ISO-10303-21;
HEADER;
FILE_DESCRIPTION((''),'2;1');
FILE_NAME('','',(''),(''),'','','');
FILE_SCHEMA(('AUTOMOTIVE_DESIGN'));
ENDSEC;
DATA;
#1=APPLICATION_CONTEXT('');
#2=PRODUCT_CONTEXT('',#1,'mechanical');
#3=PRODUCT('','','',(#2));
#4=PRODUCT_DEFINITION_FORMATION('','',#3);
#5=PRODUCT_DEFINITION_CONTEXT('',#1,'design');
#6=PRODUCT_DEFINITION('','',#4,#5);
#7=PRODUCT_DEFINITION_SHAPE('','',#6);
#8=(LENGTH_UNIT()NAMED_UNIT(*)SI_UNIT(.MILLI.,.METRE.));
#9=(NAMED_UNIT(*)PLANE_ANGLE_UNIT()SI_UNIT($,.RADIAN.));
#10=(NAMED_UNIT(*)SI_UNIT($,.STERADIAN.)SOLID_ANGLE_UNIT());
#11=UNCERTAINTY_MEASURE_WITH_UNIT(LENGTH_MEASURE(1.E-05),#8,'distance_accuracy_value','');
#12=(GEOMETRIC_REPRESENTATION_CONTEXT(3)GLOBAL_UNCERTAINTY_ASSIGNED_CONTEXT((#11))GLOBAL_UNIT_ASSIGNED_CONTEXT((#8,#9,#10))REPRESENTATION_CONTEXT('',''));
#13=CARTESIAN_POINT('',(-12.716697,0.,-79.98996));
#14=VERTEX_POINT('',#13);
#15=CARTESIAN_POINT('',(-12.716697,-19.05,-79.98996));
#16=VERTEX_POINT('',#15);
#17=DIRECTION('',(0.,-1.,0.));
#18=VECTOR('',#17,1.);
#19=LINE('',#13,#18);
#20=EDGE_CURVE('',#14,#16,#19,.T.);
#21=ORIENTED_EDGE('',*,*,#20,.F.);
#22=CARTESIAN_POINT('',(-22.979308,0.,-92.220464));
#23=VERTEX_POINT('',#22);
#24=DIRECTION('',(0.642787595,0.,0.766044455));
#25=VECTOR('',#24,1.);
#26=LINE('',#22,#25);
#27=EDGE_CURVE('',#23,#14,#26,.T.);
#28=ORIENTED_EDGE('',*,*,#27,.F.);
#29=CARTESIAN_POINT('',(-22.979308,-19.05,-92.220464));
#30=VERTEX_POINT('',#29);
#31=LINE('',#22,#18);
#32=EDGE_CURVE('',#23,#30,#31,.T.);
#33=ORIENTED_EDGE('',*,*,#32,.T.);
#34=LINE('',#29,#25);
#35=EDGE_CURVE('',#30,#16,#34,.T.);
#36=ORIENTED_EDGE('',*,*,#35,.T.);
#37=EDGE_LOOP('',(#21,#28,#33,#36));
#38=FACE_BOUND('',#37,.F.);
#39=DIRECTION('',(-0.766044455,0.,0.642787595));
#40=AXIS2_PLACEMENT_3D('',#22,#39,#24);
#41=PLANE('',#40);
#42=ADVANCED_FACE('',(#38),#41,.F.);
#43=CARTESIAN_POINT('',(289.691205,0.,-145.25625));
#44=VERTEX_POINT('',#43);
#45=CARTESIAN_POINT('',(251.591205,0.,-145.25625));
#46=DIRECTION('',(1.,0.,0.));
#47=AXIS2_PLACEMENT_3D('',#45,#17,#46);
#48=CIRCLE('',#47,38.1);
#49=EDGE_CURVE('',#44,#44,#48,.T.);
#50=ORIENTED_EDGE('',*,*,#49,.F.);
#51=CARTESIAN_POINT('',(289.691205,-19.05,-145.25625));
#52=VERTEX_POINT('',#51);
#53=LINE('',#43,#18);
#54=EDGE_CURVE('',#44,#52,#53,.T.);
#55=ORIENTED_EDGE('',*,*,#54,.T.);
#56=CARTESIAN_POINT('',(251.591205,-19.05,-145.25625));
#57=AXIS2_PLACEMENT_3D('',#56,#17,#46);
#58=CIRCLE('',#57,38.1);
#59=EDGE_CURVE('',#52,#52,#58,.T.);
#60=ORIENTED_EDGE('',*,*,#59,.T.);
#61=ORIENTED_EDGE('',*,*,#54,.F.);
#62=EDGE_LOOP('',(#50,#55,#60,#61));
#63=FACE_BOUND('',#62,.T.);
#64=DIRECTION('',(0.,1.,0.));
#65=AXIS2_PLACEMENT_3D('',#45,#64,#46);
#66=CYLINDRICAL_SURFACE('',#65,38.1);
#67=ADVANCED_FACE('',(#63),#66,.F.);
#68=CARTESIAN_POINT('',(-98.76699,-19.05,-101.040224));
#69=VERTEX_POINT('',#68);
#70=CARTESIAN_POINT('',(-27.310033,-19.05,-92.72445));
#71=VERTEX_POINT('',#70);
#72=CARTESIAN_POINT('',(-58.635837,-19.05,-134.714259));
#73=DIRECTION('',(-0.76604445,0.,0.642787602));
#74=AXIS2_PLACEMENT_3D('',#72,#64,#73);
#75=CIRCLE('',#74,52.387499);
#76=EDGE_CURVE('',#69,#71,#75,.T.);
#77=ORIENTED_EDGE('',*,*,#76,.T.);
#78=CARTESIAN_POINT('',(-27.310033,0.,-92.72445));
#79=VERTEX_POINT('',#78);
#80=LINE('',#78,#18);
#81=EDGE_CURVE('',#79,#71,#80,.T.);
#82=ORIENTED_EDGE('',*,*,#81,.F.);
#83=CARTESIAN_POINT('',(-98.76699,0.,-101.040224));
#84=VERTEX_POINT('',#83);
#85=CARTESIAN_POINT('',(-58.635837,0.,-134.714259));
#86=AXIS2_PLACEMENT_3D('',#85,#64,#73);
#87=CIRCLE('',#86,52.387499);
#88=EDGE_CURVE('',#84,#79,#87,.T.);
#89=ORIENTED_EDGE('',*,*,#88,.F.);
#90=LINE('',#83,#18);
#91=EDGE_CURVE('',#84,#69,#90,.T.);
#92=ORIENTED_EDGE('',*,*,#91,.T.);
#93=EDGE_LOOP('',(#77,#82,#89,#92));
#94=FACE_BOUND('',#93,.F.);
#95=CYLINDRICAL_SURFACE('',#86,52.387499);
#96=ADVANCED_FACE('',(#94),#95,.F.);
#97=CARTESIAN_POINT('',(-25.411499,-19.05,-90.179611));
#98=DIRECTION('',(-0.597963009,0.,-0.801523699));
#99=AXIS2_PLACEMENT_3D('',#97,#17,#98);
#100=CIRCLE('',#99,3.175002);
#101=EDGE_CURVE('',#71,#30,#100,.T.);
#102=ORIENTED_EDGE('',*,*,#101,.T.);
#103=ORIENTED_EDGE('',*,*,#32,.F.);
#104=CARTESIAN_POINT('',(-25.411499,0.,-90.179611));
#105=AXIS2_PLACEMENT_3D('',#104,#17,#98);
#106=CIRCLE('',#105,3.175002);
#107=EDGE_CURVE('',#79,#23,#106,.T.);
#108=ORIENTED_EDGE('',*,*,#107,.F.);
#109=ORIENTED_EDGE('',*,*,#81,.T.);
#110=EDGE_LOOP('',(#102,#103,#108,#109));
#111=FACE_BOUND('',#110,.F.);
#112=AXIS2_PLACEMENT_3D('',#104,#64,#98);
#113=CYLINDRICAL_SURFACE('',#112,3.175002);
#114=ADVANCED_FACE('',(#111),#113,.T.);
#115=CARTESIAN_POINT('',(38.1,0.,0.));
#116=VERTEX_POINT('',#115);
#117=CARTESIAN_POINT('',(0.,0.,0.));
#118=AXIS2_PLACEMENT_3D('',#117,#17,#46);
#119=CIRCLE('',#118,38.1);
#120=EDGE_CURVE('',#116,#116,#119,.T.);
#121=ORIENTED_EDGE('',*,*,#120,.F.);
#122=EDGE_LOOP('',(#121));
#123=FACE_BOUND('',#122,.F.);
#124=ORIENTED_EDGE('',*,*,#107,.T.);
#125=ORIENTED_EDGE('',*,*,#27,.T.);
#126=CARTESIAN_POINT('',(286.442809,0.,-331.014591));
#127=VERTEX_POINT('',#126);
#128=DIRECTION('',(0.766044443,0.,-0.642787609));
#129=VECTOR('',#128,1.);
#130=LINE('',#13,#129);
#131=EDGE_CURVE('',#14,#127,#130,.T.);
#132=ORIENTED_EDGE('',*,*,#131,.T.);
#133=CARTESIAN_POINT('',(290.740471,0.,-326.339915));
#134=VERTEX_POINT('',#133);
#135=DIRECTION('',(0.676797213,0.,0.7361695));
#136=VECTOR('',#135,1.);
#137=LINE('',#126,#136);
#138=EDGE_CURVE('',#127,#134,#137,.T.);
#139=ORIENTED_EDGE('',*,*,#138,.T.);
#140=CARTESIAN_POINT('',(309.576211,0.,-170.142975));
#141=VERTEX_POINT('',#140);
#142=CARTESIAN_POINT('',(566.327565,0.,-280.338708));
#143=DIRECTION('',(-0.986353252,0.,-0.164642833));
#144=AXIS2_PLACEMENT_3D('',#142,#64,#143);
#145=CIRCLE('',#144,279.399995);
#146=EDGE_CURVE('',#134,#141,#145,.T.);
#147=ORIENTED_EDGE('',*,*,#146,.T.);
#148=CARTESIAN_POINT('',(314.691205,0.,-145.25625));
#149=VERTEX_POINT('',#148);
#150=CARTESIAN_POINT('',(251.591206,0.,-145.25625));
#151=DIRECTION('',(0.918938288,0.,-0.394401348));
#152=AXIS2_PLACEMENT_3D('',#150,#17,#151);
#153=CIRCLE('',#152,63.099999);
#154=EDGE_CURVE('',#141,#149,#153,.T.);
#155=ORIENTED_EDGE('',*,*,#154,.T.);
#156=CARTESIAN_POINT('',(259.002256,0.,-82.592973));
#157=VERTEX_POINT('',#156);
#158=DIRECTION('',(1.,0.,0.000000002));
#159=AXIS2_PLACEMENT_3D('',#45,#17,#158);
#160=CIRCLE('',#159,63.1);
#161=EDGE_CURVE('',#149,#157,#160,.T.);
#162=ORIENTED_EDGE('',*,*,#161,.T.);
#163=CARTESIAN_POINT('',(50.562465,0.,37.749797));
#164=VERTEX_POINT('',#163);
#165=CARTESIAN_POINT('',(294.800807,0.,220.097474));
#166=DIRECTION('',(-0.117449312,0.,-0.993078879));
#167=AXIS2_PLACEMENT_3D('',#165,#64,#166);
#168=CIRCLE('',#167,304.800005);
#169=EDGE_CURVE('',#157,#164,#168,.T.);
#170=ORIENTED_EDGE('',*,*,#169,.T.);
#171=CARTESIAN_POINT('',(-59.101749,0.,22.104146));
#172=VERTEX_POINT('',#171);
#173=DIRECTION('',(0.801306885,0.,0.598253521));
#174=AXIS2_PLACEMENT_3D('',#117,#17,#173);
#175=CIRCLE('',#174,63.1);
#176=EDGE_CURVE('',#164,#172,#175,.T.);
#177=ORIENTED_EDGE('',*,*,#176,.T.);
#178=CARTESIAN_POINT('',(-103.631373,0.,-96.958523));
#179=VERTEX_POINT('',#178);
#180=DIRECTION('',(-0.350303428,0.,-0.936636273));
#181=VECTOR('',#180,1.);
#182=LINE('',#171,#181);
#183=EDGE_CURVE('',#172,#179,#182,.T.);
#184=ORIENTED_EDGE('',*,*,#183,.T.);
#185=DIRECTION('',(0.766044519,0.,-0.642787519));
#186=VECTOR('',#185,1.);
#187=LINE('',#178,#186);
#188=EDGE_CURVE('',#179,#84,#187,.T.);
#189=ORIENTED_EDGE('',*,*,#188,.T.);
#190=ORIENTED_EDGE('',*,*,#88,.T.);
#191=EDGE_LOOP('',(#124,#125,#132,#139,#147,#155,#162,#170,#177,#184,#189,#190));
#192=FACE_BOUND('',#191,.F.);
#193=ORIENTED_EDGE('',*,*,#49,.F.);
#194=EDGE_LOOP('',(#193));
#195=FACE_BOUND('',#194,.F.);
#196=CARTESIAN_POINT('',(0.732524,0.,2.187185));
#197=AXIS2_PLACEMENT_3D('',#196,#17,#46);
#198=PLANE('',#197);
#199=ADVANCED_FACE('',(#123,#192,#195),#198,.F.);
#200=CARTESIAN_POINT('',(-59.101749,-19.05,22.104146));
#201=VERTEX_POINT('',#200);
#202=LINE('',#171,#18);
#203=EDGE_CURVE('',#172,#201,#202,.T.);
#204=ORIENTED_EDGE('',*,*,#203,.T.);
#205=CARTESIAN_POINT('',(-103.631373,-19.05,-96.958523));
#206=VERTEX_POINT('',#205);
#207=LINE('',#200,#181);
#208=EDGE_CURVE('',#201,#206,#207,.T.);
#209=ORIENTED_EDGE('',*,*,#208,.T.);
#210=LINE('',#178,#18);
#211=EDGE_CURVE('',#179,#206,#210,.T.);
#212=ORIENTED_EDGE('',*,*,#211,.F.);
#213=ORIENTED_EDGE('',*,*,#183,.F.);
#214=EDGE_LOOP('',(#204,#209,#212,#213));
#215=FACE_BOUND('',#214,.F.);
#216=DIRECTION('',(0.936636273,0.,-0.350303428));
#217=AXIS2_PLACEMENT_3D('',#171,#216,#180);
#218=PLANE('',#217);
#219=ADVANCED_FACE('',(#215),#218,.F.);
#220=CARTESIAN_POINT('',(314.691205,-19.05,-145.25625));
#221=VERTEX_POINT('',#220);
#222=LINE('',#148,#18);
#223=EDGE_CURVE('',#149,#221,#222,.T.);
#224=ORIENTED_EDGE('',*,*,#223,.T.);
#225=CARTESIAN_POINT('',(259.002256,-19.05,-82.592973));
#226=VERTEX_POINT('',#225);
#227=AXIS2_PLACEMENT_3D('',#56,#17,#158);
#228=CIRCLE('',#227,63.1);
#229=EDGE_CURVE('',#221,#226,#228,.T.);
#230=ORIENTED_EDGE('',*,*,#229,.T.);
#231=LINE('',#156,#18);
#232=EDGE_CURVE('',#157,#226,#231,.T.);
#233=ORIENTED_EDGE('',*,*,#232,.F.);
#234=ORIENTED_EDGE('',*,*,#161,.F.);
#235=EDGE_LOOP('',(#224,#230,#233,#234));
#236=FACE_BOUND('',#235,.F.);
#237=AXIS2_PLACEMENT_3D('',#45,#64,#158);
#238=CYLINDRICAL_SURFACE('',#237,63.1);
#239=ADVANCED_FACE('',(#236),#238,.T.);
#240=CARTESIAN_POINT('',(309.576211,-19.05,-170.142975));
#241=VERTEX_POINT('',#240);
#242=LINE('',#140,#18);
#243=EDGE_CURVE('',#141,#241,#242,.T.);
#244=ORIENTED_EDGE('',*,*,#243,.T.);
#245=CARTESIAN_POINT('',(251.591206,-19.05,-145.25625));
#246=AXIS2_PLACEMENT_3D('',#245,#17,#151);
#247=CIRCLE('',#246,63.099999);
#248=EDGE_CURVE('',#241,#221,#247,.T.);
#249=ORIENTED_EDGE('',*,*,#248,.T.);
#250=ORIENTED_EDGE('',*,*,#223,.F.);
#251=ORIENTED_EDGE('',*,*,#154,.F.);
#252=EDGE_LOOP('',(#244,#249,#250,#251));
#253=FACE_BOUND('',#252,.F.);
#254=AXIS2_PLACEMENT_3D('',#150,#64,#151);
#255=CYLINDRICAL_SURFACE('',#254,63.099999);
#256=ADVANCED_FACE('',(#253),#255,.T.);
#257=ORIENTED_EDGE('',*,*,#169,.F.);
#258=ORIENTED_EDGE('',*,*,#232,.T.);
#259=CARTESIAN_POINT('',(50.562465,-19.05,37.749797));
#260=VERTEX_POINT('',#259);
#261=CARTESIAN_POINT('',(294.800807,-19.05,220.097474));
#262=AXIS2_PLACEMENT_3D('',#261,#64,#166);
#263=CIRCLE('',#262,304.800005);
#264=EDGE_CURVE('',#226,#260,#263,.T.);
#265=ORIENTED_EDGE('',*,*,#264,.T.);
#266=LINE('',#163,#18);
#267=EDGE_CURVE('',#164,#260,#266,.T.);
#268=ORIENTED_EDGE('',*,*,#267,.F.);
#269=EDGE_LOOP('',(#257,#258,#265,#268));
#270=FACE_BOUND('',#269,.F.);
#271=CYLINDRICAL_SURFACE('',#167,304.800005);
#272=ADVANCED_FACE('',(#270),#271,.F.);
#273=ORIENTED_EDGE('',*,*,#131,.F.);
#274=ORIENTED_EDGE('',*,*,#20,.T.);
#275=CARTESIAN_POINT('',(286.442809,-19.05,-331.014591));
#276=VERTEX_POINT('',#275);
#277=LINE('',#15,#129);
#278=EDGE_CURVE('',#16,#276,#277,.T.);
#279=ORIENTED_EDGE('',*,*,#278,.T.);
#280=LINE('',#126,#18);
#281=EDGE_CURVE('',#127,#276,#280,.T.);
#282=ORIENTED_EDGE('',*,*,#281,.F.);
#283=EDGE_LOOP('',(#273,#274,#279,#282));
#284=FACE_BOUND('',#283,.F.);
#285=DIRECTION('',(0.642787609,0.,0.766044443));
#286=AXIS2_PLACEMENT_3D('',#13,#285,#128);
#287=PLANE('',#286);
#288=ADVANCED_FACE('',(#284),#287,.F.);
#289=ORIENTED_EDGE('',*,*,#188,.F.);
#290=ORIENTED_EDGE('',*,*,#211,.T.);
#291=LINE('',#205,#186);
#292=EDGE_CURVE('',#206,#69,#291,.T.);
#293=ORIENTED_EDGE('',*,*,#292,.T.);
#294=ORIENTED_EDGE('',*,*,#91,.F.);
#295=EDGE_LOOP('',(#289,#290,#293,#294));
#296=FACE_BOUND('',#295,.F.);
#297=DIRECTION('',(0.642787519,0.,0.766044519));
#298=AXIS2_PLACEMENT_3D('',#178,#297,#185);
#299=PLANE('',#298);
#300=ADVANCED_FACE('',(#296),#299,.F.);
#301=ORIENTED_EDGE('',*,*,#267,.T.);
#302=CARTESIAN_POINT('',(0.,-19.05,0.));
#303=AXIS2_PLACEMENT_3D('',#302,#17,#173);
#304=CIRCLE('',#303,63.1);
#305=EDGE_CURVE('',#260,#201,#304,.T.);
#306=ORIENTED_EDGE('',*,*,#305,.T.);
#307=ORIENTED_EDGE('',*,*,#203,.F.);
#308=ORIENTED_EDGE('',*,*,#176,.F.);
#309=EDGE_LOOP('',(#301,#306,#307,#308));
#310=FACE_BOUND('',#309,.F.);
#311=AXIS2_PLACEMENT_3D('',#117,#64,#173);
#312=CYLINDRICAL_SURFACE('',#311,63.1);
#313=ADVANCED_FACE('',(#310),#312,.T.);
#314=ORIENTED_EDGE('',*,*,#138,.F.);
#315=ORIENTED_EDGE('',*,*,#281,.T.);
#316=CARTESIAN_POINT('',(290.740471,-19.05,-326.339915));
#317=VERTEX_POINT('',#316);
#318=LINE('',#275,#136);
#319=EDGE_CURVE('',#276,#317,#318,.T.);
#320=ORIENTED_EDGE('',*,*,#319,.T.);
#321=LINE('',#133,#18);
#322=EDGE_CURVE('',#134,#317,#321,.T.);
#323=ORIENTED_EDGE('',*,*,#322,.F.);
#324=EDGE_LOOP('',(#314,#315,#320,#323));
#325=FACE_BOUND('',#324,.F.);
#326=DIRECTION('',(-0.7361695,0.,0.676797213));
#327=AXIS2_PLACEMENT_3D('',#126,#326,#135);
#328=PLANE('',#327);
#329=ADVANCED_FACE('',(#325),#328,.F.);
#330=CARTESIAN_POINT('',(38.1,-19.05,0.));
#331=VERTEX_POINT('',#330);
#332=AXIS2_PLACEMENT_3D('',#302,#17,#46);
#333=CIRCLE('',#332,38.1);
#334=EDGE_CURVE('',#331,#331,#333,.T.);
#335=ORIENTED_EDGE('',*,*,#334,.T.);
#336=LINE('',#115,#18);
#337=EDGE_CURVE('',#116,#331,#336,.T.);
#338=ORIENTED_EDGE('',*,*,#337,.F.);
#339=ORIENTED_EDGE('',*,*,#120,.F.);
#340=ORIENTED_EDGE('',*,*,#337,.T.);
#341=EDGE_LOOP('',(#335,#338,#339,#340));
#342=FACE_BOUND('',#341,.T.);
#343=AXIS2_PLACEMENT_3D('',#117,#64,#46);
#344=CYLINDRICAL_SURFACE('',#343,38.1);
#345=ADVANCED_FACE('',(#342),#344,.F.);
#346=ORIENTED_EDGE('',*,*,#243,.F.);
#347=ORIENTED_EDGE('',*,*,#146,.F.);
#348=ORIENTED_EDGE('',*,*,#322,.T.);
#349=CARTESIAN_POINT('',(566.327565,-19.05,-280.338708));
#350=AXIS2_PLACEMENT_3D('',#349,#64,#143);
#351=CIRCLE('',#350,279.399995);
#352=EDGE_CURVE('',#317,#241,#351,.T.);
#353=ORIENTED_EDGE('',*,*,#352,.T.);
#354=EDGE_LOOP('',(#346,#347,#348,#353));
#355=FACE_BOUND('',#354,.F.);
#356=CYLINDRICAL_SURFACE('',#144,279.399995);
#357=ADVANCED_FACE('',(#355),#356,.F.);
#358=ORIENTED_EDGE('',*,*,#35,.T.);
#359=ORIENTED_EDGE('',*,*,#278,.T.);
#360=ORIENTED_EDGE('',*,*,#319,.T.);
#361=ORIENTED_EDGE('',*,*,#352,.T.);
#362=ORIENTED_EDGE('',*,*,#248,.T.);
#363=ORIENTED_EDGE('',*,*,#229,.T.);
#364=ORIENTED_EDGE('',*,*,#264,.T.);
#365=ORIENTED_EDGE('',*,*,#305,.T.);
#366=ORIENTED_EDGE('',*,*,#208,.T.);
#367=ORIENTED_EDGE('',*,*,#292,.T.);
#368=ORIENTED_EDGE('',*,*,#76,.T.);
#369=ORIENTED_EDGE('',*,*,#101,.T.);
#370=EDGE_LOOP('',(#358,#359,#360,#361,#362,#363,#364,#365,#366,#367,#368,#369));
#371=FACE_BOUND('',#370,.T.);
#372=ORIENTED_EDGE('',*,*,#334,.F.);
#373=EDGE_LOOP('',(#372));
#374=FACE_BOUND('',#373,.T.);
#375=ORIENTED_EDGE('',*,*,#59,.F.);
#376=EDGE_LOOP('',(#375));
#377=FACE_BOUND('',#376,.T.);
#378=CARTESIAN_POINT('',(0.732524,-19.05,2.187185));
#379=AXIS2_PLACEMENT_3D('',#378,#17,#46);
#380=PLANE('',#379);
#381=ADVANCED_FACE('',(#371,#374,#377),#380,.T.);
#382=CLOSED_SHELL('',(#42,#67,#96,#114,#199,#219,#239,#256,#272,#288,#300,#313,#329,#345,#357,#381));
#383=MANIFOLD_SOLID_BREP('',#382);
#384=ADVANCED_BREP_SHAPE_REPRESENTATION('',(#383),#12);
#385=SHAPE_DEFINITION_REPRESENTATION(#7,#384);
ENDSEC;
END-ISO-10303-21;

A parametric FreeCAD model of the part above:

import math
import FreeCAD as App
import Part
import Sketcher

V = App.Vector
Q = App.Units.Quantity

doc = App.newDocument("Part")
body = doc.addObject("PartDesign::Body", "Body")

sketch1 = doc.addObject("Sketcher::SketchObject", "Sketch")
body.addObject(sketch1)
sketch1.AttachmentSupport = (doc.XZ_Plane, [""])
sketch1.MapMode = "FlatFace"
sketch1.addGeometry([
    Part.ArcOfCircle(Part.Circle(V(0, 0, 0), V(0, 0, 1), 63.1), math.radians(36.744917), math.radians(159.494125)),
    Part.LineSegment(V(-59.101749, 22.104146, 0), V(-103.631373, -96.958523, 0)),
    Part.LineSegment(V(-103.631373, -96.958523, 0), V(-98.76699, -101.040224, 0)),
    Part.ArcOfCircle(Part.Circle(V(-58.635837, -134.714259, 0), V(0, 0, 1), 52.387499), math.radians(53.275828), math.radians(140.000001)),
    Part.ArcOfCircle(Part.Circle(V(-25.411499, -90.179611, 0), V(0, 0, 1), 3.175002), math.radians(-126.724148), math.radians(-40.000032)),
    Part.LineSegment(V(-22.979308, -92.220464, 0), V(-12.716697, -79.98996, 0)),
    Part.LineSegment(V(-12.716697, -79.98996, 0), V(286.442809, -331.014591, 0)),
    Part.LineSegment(V(286.442809, -331.014591, 0), V(290.740471, -326.339915, 0)),
    Part.ArcOfCircle(Part.Circle(V(566.327565, -280.338708, 0), V(0, 0, 1), 279.399995), math.radians(156.771357), math.radians(189.476487)),
    Part.ArcOfCircle(Part.Circle(V(251.591206, -145.25625, 0), V(0, 0, 1), 63.099999), math.radians(-23.228643), math.radians(0)),
    Part.ArcOfCircle(Part.Circle(V(251.591205, -145.25625, 0), V(0, 0, 1), 63.1), math.radians(0), math.radians(83.255083)),
    Part.ArcOfCircle(Part.Circle(V(294.800807, 220.097474, 0), V(0, 0, 1), 304.800005), math.radians(-143.255082), math.radians(-96.744918)),
    Part.Circle(V(251.591205, -145.25625, 0), V(0, 0, 1), 38.1),
    Part.Circle(V(0, 0, 0), V(0, 0, 1), 38.1),
], False)
sketch1.addConstraint([
    Sketcher.Constraint("Coincident", 0, 2, 1, 1),
    Sketcher.Constraint("Coincident", 1, 2, 2, 1),
    Sketcher.Constraint("Coincident", 2, 2, 3, 2),
    Sketcher.Constraint("Coincident", 3, 1, 4, 1),
    Sketcher.Constraint("Coincident", 4, 2, 5, 1),
    Sketcher.Constraint("Coincident", 5, 2, 6, 1),
    Sketcher.Constraint("Coincident", 6, 2, 7, 1),
    Sketcher.Constraint("Coincident", 7, 2, 8, 2),
    Sketcher.Constraint("Coincident", 8, 1, 9, 1),
    Sketcher.Constraint("Coincident", 9, 2, 10, 1),
    Sketcher.Constraint("Coincident", 10, 2, 11, 2),
    Sketcher.Constraint("Coincident", 11, 1, 0, 1),
    Sketcher.Constraint("Coincident", 0, 3, -1, 1),
    Sketcher.Constraint("Coincident", 13, 3, -1, 1),
    Sketcher.Constraint("Coincident", 10, 3, 9, 3),
    Sketcher.Constraint("Coincident", 12, 3, 9, 3),
    Sketcher.Constraint("Diameter", 12, Q("3 in")),
    Sketcher.Constraint("Diameter", 13, Q("3 in")),
    Sketcher.Constraint("Radius", 11, Q("12.0000002 in")),
    Sketcher.Constraint("Radius", 3, Q("2.0625 in")),
    Sketcher.Constraint("Radius", 4, Q("0.1250001 in")),
    Sketcher.Constraint("Distance", 2, Q("0.25 in")),
    Sketcher.Constraint("Distance", 7, Q("0.25 in")),
    Sketcher.Constraint("Radius", 0, Q("63.1 mm")),
    Sketcher.Constraint("Radius", 9, Q("63.099999 mm")),
    Sketcher.Constraint("Distance", 6, Q("15.375 in")),
    Sketcher.Constraint("DistanceY", 9, 3, -1, 1, Q("5.71875 in")),
    Sketcher.Constraint("DistanceY", 9, 2, -1, 1, Q("5.71875 in")),
    Sketcher.Constraint("Radius", 8, Q("279.399995 mm")),
    Sketcher.Constraint("DistanceY", 3, 3, 5, 2, Q("2.1545 in")),
    Sketcher.Constraint("DistanceX", 4, 3, -1, 1, Q("25.411499 mm")),
    Sketcher.Constraint("DistanceX", 3, 3, 8, 3, Q("624.963402 mm")),
    Sketcher.Constraint("DistanceX", 9, 3, 11, 3, Q("43.209601 mm")),
    Sketcher.Constraint("DistanceY", 2, 2, 1, 2, Q("4.081701 mm")),
    Sketcher.Constraint("DistanceX", 6, 2, 8, 1, Q("23.133402 mm")),
    Sketcher.Constraint("Distance", 5, Q("15.965789 mm")),
    Sketcher.Constraint("DistanceY", 3, 3, -1, 1, Q("134.714259 mm")),
    Sketcher.Constraint("DistanceY", 4, 3, -1, 1, Q("90.179611 mm")),
    Sketcher.Constraint("DistanceX", 0, 2, -1, 1, Q("59.101749 mm")),
    Sketcher.Constraint("DistanceX", 2, 2, -1, 1, Q("98.76699 mm")),
    Sketcher.Constraint("DistanceY", 3, 1, -1, 1, Q("92.72445 mm")),
    Sketcher.Constraint("DistanceX", 4, 2, -1, 1, Q("22.979308 mm")),
    Sketcher.Constraint("DistanceX", -1, 1, 6, 2, Q("286.442809 mm")),
    Sketcher.Constraint("DistanceX", 12, 3, 10, 2, Q("7.411051 mm")),
    Sketcher.Constraint("DistanceY", 0, 2, 11, 1, Q("15.645651 mm")),
])
pad1 = doc.addObject("PartDesign::Pad", "Pad")
body.addObject(pad1)
pad1.Profile = sketch1
pad1.Length = Q("0.75 in")

doc.recompute()
